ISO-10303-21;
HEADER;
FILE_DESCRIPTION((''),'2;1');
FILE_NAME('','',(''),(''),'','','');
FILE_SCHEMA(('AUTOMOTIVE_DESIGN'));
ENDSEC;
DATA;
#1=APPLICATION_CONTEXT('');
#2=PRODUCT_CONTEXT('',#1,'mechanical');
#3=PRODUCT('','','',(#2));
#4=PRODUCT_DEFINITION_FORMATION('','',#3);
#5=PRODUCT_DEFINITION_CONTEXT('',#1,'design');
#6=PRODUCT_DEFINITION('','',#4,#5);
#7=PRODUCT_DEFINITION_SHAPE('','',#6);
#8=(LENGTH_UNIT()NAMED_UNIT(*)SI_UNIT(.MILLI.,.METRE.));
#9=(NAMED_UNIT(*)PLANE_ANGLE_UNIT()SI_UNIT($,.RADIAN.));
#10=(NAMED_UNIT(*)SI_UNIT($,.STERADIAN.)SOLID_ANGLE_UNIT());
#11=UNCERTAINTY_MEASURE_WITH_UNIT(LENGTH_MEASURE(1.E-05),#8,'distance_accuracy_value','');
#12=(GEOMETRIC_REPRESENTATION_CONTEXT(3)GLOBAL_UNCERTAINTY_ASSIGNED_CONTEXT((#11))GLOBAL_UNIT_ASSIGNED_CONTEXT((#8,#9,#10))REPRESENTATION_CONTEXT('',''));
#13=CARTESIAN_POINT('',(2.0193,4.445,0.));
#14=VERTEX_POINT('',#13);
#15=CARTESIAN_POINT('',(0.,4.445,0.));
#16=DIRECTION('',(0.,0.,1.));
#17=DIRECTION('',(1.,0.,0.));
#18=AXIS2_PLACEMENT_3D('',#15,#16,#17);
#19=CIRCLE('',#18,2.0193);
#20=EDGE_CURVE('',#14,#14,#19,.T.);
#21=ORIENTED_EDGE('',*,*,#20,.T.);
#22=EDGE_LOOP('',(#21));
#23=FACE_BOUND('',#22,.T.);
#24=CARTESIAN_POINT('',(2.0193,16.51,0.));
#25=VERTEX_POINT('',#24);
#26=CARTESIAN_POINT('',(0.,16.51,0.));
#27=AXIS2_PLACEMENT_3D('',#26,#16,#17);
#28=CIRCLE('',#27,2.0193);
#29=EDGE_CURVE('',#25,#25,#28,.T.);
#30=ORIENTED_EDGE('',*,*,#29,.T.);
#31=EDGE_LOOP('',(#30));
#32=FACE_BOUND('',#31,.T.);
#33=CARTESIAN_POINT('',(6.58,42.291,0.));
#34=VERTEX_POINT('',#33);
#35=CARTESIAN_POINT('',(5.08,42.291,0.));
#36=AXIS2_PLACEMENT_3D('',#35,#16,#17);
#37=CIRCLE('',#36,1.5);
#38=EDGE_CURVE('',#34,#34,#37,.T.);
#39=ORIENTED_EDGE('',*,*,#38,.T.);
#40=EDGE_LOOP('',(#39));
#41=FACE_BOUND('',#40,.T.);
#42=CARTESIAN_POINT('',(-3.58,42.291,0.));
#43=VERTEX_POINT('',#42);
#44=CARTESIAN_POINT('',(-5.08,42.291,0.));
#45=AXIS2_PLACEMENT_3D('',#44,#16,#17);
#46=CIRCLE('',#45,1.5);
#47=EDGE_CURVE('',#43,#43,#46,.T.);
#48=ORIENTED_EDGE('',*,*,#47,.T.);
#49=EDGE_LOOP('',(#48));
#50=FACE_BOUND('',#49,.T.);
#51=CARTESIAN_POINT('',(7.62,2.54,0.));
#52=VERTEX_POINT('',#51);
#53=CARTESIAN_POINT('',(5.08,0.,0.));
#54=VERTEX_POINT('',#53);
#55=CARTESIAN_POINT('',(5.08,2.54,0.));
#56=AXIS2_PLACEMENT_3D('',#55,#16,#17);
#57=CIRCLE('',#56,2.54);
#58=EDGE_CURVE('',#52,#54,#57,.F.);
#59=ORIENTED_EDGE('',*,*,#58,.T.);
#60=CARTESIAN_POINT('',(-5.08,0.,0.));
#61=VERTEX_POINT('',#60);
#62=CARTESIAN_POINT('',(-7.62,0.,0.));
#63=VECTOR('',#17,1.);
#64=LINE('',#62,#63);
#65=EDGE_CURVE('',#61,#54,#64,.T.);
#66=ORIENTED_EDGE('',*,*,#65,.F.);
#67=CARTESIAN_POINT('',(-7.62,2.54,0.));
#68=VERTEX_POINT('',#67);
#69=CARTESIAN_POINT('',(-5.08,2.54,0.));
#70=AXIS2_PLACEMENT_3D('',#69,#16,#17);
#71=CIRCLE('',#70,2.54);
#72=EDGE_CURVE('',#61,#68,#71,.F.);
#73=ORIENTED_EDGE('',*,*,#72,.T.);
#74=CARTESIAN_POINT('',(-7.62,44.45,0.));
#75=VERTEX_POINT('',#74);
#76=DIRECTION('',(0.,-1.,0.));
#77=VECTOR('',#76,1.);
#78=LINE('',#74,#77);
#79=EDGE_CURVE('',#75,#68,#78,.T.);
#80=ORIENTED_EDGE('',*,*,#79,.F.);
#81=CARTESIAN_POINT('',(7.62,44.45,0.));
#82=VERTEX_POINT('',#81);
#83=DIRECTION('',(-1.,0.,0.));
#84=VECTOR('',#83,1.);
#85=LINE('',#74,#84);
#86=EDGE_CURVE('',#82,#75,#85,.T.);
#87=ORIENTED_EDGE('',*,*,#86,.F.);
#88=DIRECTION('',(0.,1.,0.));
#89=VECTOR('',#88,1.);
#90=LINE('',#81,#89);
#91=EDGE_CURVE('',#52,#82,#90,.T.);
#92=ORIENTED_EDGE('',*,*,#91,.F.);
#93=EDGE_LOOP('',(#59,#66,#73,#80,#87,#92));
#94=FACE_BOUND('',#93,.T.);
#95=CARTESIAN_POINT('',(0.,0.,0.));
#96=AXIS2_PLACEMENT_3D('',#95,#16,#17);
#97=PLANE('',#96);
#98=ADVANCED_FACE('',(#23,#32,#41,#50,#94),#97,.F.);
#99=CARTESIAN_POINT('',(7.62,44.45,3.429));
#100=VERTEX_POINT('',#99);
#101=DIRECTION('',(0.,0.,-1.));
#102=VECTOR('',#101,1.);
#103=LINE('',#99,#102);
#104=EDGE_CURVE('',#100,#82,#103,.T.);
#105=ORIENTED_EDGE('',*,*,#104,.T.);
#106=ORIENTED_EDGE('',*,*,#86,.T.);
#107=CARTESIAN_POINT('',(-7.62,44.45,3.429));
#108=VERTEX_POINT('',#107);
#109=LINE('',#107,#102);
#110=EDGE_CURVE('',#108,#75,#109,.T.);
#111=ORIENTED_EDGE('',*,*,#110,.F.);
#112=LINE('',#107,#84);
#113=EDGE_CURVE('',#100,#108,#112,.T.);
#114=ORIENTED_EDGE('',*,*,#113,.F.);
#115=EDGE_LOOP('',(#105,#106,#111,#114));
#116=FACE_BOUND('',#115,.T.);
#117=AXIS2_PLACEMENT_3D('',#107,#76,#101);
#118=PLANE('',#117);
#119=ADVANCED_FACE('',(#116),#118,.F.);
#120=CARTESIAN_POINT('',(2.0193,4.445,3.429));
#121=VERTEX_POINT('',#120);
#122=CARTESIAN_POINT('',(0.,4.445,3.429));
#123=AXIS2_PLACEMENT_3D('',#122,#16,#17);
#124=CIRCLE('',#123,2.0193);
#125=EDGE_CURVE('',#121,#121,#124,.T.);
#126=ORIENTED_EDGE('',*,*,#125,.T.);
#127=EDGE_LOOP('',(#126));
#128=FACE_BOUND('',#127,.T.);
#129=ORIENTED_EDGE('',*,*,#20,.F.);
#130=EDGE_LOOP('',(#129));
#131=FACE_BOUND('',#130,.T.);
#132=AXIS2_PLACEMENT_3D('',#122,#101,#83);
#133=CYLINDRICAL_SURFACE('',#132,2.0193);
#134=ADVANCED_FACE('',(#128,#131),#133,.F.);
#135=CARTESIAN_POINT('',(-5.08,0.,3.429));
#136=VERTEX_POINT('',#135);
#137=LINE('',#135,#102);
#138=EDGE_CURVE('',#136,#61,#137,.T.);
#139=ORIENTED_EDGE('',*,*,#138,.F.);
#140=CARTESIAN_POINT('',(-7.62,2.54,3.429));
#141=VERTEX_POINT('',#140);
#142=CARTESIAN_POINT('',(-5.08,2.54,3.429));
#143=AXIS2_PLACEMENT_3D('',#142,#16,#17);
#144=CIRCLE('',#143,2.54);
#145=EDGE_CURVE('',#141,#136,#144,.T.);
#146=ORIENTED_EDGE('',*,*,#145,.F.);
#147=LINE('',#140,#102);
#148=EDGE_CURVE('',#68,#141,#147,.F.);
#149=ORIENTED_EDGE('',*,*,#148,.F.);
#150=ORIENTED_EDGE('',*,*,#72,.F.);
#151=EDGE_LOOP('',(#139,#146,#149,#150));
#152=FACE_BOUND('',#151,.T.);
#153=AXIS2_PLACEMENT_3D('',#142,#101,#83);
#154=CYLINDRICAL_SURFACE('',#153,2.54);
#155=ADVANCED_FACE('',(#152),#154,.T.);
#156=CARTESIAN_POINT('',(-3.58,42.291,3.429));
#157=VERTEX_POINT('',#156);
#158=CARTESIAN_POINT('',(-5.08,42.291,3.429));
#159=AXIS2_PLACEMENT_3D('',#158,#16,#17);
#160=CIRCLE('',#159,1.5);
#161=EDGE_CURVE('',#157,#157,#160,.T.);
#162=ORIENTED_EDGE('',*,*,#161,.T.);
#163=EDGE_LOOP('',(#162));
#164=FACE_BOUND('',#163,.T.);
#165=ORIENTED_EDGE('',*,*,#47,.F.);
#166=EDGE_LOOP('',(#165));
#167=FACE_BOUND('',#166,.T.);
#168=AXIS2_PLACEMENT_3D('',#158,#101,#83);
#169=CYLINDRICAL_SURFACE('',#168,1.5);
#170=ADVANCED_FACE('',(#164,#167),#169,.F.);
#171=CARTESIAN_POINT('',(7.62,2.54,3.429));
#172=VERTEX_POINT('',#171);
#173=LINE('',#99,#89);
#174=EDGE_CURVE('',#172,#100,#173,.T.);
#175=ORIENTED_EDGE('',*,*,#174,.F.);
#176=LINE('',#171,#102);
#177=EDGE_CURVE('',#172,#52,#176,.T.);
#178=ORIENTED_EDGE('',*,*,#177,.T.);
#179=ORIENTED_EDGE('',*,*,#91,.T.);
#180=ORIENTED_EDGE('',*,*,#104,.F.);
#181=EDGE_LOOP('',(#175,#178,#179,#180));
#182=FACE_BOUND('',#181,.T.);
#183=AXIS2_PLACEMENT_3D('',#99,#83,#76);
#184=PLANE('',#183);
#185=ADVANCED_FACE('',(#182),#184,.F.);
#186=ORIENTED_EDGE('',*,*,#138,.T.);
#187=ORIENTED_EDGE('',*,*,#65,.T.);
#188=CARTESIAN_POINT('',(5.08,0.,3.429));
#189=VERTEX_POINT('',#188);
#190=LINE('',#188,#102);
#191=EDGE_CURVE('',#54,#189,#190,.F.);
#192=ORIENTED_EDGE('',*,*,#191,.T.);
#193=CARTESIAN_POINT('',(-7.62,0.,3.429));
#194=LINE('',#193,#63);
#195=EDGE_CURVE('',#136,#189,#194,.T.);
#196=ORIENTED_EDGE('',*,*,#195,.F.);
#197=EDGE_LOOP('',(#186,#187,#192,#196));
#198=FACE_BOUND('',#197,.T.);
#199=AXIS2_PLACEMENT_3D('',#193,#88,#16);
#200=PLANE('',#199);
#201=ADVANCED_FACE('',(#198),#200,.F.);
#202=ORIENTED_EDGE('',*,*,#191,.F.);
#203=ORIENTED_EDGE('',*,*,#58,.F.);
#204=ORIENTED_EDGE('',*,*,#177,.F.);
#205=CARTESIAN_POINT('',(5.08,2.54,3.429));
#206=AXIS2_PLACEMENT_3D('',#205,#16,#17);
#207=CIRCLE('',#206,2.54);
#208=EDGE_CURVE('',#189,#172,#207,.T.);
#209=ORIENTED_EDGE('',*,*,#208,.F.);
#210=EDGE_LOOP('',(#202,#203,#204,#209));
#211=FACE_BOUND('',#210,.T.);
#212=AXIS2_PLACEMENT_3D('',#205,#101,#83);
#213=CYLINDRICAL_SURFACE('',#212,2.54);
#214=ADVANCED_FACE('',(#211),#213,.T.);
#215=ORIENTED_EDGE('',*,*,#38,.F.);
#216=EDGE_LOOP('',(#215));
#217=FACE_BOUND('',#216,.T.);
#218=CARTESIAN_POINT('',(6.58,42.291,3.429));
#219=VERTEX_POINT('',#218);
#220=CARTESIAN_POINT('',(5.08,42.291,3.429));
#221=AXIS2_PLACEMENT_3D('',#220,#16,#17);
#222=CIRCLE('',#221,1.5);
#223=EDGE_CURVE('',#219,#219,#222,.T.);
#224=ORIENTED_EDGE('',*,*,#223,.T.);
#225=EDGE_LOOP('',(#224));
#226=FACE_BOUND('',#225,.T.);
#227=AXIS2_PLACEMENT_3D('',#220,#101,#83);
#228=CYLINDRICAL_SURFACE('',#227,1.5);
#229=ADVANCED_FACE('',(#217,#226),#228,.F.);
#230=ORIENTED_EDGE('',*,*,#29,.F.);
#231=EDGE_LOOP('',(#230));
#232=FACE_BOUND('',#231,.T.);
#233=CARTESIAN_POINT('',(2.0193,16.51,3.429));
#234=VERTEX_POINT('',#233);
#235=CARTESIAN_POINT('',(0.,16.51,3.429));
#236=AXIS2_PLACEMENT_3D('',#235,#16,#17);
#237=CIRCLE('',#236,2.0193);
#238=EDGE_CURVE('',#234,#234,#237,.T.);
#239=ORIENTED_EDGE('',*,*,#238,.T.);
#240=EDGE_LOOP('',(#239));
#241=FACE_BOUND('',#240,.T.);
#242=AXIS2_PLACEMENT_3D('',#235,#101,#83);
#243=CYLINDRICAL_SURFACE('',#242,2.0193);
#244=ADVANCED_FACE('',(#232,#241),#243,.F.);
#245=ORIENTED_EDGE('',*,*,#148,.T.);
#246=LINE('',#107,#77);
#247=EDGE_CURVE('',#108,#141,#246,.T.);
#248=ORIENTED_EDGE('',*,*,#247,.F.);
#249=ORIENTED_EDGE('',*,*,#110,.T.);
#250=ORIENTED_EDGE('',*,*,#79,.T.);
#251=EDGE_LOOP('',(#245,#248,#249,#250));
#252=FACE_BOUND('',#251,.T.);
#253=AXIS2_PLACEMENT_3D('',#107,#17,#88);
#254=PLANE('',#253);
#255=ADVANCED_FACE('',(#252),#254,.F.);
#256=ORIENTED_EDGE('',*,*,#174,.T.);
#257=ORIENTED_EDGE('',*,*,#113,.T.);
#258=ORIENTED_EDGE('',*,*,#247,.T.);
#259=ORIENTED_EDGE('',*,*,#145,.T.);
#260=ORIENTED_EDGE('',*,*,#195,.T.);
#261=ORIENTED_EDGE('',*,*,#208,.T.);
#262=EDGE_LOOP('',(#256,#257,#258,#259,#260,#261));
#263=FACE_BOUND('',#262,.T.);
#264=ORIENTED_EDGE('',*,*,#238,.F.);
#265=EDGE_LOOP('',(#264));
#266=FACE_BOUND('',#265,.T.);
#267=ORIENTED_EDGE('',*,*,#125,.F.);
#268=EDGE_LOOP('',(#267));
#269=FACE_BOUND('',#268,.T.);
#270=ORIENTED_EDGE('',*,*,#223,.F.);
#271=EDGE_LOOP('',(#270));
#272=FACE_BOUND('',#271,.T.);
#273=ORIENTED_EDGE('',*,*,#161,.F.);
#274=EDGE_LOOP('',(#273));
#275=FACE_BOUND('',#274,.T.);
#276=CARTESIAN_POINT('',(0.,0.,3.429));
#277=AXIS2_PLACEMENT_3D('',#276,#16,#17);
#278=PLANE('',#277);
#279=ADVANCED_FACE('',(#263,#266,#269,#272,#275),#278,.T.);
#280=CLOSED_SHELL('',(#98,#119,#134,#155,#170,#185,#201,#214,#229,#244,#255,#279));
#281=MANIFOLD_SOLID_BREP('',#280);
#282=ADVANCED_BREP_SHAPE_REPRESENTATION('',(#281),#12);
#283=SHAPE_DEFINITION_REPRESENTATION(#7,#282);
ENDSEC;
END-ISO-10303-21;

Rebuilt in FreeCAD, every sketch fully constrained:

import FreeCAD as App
import Part
import Sketcher
from FreeCAD import Vector
Q = App.Units.Quantity


def edges_at(feature, points):
    """Names of the edges that pass closest to the given points."""
    edges = feature.Shape.Edges
    near = lambda p: min(range(len(edges)), key=lambda i: edges[i].distToShape(Part.Vertex(*p))[0])
    return sorted({f"Edge{near(p) + 1}" for p in points})


def add_polygon(sketch, points):
    """Adds a closed chain of lines whose ends are joined by coincident constraints."""
    first, n = sketch.GeometryCount, len(points)
    for a, b in zip(points, points[1:] + points[:1]):
        sketch.addGeometry(Part.LineSegment(App.Vector(*a, 0), App.Vector(*b, 0)), False)
    for i in range(n):
        sketch.addConstraint(Sketcher.Constraint("Coincident", first + i, 2, first + (i + 1) % n, 1))

doc = App.newDocument("Part")
body = doc.addObject("PartDesign::Body", "Body")

# Sketch on XY plane
sketch1 = doc.addObject("Sketcher::SketchObject", "Sketch")
body.addObject(sketch1)
sketch1.AttachmentSupport = (doc.XY_Plane, [""])
sketch1.MapMode = "FlatFace"
add_polygon(sketch1, [(-7.6, 44.5), (-7.6, 0), (7.6, 0), (7.6, 44.5)])  # lines 0-3
sketch1.addGeometry(Part.Circle(Vector(0, 4.4, 0), Vector(0, 0, 1), 2), False)  # 4
sketch1.addGeometry(Part.Circle(Vector(0, 16.5, 0), Vector(0, 0, 1), 2), False)  # 5
sketch1.addGeometry(Part.Circle(Vector(-5.1, 42.3, 0), Vector(0, 0, 1), 1.5), False)  # 6
sketch1.addGeometry(Part.Circle(Vector(5.1, 42.3, 0), Vector(0, 0, 1), 1.5), False)  # 7
sketch1.addConstraint([
    Sketcher.Constraint("Vertical", 0),
    Sketcher.Constraint("Horizontal", 1),
    Sketcher.Constraint("Vertical", 2),
    Sketcher.Constraint("Horizontal", 3),
    Sketcher.Constraint("Equal", 4, 5),
    Sketcher.Constraint("Equal", 6, 7),
    Sketcher.Constraint("Symmetric", 0, 2, 1, 2, -1, 1),
    Sketcher.Constraint("Symmetric", 6, 3, 7, 3, -2),
    Sketcher.Constraint("PointOnObject", 4, 3, -2),
    Sketcher.Constraint("PointOnObject", 5, 3, -2),
    Sketcher.Constraint("Diameter", 4, Q("0.159 in")),
    Sketcher.Constraint("DistanceX", 1, 1, 1, 2, Q("0.6 in")),
    Sketcher.Constraint("DistanceY", 0, 2, 0, 1, Q("1.75 in")),
    Sketcher.Constraint("DistanceX", 6, 3, -1, 1, Q("0.2 in")),
    Sketcher.Constraint("DistanceY", 5, 3, 2, 2, Q("1.1 in")),
    Sketcher.Constraint("Diameter", 6, 3.0),
    Sketcher.Constraint("DistanceY", 4, 3, 6, 3, Q("1.49 in")),
    Sketcher.Constraint("DistanceY", -1, 1, 4, 3, Q("0.175 in")),
])
pad1 = doc.addObject("PartDesign::Pad", "Pad")
body.addObject(pad1)
pad1.Profile = sketch1
pad1.Length = Q("0.135 in")
doc.recompute()

fillet = doc.addObject("PartDesign::Fillet", "Fillet")
body.addObject(fillet)
fillet.Base = (pad1, edges_at(pad1, [(7.62, 0, 1.714), (-7.62, 0, 1.714)]))
fillet.Radius = Q("0.1 in")

doc.recompute()
